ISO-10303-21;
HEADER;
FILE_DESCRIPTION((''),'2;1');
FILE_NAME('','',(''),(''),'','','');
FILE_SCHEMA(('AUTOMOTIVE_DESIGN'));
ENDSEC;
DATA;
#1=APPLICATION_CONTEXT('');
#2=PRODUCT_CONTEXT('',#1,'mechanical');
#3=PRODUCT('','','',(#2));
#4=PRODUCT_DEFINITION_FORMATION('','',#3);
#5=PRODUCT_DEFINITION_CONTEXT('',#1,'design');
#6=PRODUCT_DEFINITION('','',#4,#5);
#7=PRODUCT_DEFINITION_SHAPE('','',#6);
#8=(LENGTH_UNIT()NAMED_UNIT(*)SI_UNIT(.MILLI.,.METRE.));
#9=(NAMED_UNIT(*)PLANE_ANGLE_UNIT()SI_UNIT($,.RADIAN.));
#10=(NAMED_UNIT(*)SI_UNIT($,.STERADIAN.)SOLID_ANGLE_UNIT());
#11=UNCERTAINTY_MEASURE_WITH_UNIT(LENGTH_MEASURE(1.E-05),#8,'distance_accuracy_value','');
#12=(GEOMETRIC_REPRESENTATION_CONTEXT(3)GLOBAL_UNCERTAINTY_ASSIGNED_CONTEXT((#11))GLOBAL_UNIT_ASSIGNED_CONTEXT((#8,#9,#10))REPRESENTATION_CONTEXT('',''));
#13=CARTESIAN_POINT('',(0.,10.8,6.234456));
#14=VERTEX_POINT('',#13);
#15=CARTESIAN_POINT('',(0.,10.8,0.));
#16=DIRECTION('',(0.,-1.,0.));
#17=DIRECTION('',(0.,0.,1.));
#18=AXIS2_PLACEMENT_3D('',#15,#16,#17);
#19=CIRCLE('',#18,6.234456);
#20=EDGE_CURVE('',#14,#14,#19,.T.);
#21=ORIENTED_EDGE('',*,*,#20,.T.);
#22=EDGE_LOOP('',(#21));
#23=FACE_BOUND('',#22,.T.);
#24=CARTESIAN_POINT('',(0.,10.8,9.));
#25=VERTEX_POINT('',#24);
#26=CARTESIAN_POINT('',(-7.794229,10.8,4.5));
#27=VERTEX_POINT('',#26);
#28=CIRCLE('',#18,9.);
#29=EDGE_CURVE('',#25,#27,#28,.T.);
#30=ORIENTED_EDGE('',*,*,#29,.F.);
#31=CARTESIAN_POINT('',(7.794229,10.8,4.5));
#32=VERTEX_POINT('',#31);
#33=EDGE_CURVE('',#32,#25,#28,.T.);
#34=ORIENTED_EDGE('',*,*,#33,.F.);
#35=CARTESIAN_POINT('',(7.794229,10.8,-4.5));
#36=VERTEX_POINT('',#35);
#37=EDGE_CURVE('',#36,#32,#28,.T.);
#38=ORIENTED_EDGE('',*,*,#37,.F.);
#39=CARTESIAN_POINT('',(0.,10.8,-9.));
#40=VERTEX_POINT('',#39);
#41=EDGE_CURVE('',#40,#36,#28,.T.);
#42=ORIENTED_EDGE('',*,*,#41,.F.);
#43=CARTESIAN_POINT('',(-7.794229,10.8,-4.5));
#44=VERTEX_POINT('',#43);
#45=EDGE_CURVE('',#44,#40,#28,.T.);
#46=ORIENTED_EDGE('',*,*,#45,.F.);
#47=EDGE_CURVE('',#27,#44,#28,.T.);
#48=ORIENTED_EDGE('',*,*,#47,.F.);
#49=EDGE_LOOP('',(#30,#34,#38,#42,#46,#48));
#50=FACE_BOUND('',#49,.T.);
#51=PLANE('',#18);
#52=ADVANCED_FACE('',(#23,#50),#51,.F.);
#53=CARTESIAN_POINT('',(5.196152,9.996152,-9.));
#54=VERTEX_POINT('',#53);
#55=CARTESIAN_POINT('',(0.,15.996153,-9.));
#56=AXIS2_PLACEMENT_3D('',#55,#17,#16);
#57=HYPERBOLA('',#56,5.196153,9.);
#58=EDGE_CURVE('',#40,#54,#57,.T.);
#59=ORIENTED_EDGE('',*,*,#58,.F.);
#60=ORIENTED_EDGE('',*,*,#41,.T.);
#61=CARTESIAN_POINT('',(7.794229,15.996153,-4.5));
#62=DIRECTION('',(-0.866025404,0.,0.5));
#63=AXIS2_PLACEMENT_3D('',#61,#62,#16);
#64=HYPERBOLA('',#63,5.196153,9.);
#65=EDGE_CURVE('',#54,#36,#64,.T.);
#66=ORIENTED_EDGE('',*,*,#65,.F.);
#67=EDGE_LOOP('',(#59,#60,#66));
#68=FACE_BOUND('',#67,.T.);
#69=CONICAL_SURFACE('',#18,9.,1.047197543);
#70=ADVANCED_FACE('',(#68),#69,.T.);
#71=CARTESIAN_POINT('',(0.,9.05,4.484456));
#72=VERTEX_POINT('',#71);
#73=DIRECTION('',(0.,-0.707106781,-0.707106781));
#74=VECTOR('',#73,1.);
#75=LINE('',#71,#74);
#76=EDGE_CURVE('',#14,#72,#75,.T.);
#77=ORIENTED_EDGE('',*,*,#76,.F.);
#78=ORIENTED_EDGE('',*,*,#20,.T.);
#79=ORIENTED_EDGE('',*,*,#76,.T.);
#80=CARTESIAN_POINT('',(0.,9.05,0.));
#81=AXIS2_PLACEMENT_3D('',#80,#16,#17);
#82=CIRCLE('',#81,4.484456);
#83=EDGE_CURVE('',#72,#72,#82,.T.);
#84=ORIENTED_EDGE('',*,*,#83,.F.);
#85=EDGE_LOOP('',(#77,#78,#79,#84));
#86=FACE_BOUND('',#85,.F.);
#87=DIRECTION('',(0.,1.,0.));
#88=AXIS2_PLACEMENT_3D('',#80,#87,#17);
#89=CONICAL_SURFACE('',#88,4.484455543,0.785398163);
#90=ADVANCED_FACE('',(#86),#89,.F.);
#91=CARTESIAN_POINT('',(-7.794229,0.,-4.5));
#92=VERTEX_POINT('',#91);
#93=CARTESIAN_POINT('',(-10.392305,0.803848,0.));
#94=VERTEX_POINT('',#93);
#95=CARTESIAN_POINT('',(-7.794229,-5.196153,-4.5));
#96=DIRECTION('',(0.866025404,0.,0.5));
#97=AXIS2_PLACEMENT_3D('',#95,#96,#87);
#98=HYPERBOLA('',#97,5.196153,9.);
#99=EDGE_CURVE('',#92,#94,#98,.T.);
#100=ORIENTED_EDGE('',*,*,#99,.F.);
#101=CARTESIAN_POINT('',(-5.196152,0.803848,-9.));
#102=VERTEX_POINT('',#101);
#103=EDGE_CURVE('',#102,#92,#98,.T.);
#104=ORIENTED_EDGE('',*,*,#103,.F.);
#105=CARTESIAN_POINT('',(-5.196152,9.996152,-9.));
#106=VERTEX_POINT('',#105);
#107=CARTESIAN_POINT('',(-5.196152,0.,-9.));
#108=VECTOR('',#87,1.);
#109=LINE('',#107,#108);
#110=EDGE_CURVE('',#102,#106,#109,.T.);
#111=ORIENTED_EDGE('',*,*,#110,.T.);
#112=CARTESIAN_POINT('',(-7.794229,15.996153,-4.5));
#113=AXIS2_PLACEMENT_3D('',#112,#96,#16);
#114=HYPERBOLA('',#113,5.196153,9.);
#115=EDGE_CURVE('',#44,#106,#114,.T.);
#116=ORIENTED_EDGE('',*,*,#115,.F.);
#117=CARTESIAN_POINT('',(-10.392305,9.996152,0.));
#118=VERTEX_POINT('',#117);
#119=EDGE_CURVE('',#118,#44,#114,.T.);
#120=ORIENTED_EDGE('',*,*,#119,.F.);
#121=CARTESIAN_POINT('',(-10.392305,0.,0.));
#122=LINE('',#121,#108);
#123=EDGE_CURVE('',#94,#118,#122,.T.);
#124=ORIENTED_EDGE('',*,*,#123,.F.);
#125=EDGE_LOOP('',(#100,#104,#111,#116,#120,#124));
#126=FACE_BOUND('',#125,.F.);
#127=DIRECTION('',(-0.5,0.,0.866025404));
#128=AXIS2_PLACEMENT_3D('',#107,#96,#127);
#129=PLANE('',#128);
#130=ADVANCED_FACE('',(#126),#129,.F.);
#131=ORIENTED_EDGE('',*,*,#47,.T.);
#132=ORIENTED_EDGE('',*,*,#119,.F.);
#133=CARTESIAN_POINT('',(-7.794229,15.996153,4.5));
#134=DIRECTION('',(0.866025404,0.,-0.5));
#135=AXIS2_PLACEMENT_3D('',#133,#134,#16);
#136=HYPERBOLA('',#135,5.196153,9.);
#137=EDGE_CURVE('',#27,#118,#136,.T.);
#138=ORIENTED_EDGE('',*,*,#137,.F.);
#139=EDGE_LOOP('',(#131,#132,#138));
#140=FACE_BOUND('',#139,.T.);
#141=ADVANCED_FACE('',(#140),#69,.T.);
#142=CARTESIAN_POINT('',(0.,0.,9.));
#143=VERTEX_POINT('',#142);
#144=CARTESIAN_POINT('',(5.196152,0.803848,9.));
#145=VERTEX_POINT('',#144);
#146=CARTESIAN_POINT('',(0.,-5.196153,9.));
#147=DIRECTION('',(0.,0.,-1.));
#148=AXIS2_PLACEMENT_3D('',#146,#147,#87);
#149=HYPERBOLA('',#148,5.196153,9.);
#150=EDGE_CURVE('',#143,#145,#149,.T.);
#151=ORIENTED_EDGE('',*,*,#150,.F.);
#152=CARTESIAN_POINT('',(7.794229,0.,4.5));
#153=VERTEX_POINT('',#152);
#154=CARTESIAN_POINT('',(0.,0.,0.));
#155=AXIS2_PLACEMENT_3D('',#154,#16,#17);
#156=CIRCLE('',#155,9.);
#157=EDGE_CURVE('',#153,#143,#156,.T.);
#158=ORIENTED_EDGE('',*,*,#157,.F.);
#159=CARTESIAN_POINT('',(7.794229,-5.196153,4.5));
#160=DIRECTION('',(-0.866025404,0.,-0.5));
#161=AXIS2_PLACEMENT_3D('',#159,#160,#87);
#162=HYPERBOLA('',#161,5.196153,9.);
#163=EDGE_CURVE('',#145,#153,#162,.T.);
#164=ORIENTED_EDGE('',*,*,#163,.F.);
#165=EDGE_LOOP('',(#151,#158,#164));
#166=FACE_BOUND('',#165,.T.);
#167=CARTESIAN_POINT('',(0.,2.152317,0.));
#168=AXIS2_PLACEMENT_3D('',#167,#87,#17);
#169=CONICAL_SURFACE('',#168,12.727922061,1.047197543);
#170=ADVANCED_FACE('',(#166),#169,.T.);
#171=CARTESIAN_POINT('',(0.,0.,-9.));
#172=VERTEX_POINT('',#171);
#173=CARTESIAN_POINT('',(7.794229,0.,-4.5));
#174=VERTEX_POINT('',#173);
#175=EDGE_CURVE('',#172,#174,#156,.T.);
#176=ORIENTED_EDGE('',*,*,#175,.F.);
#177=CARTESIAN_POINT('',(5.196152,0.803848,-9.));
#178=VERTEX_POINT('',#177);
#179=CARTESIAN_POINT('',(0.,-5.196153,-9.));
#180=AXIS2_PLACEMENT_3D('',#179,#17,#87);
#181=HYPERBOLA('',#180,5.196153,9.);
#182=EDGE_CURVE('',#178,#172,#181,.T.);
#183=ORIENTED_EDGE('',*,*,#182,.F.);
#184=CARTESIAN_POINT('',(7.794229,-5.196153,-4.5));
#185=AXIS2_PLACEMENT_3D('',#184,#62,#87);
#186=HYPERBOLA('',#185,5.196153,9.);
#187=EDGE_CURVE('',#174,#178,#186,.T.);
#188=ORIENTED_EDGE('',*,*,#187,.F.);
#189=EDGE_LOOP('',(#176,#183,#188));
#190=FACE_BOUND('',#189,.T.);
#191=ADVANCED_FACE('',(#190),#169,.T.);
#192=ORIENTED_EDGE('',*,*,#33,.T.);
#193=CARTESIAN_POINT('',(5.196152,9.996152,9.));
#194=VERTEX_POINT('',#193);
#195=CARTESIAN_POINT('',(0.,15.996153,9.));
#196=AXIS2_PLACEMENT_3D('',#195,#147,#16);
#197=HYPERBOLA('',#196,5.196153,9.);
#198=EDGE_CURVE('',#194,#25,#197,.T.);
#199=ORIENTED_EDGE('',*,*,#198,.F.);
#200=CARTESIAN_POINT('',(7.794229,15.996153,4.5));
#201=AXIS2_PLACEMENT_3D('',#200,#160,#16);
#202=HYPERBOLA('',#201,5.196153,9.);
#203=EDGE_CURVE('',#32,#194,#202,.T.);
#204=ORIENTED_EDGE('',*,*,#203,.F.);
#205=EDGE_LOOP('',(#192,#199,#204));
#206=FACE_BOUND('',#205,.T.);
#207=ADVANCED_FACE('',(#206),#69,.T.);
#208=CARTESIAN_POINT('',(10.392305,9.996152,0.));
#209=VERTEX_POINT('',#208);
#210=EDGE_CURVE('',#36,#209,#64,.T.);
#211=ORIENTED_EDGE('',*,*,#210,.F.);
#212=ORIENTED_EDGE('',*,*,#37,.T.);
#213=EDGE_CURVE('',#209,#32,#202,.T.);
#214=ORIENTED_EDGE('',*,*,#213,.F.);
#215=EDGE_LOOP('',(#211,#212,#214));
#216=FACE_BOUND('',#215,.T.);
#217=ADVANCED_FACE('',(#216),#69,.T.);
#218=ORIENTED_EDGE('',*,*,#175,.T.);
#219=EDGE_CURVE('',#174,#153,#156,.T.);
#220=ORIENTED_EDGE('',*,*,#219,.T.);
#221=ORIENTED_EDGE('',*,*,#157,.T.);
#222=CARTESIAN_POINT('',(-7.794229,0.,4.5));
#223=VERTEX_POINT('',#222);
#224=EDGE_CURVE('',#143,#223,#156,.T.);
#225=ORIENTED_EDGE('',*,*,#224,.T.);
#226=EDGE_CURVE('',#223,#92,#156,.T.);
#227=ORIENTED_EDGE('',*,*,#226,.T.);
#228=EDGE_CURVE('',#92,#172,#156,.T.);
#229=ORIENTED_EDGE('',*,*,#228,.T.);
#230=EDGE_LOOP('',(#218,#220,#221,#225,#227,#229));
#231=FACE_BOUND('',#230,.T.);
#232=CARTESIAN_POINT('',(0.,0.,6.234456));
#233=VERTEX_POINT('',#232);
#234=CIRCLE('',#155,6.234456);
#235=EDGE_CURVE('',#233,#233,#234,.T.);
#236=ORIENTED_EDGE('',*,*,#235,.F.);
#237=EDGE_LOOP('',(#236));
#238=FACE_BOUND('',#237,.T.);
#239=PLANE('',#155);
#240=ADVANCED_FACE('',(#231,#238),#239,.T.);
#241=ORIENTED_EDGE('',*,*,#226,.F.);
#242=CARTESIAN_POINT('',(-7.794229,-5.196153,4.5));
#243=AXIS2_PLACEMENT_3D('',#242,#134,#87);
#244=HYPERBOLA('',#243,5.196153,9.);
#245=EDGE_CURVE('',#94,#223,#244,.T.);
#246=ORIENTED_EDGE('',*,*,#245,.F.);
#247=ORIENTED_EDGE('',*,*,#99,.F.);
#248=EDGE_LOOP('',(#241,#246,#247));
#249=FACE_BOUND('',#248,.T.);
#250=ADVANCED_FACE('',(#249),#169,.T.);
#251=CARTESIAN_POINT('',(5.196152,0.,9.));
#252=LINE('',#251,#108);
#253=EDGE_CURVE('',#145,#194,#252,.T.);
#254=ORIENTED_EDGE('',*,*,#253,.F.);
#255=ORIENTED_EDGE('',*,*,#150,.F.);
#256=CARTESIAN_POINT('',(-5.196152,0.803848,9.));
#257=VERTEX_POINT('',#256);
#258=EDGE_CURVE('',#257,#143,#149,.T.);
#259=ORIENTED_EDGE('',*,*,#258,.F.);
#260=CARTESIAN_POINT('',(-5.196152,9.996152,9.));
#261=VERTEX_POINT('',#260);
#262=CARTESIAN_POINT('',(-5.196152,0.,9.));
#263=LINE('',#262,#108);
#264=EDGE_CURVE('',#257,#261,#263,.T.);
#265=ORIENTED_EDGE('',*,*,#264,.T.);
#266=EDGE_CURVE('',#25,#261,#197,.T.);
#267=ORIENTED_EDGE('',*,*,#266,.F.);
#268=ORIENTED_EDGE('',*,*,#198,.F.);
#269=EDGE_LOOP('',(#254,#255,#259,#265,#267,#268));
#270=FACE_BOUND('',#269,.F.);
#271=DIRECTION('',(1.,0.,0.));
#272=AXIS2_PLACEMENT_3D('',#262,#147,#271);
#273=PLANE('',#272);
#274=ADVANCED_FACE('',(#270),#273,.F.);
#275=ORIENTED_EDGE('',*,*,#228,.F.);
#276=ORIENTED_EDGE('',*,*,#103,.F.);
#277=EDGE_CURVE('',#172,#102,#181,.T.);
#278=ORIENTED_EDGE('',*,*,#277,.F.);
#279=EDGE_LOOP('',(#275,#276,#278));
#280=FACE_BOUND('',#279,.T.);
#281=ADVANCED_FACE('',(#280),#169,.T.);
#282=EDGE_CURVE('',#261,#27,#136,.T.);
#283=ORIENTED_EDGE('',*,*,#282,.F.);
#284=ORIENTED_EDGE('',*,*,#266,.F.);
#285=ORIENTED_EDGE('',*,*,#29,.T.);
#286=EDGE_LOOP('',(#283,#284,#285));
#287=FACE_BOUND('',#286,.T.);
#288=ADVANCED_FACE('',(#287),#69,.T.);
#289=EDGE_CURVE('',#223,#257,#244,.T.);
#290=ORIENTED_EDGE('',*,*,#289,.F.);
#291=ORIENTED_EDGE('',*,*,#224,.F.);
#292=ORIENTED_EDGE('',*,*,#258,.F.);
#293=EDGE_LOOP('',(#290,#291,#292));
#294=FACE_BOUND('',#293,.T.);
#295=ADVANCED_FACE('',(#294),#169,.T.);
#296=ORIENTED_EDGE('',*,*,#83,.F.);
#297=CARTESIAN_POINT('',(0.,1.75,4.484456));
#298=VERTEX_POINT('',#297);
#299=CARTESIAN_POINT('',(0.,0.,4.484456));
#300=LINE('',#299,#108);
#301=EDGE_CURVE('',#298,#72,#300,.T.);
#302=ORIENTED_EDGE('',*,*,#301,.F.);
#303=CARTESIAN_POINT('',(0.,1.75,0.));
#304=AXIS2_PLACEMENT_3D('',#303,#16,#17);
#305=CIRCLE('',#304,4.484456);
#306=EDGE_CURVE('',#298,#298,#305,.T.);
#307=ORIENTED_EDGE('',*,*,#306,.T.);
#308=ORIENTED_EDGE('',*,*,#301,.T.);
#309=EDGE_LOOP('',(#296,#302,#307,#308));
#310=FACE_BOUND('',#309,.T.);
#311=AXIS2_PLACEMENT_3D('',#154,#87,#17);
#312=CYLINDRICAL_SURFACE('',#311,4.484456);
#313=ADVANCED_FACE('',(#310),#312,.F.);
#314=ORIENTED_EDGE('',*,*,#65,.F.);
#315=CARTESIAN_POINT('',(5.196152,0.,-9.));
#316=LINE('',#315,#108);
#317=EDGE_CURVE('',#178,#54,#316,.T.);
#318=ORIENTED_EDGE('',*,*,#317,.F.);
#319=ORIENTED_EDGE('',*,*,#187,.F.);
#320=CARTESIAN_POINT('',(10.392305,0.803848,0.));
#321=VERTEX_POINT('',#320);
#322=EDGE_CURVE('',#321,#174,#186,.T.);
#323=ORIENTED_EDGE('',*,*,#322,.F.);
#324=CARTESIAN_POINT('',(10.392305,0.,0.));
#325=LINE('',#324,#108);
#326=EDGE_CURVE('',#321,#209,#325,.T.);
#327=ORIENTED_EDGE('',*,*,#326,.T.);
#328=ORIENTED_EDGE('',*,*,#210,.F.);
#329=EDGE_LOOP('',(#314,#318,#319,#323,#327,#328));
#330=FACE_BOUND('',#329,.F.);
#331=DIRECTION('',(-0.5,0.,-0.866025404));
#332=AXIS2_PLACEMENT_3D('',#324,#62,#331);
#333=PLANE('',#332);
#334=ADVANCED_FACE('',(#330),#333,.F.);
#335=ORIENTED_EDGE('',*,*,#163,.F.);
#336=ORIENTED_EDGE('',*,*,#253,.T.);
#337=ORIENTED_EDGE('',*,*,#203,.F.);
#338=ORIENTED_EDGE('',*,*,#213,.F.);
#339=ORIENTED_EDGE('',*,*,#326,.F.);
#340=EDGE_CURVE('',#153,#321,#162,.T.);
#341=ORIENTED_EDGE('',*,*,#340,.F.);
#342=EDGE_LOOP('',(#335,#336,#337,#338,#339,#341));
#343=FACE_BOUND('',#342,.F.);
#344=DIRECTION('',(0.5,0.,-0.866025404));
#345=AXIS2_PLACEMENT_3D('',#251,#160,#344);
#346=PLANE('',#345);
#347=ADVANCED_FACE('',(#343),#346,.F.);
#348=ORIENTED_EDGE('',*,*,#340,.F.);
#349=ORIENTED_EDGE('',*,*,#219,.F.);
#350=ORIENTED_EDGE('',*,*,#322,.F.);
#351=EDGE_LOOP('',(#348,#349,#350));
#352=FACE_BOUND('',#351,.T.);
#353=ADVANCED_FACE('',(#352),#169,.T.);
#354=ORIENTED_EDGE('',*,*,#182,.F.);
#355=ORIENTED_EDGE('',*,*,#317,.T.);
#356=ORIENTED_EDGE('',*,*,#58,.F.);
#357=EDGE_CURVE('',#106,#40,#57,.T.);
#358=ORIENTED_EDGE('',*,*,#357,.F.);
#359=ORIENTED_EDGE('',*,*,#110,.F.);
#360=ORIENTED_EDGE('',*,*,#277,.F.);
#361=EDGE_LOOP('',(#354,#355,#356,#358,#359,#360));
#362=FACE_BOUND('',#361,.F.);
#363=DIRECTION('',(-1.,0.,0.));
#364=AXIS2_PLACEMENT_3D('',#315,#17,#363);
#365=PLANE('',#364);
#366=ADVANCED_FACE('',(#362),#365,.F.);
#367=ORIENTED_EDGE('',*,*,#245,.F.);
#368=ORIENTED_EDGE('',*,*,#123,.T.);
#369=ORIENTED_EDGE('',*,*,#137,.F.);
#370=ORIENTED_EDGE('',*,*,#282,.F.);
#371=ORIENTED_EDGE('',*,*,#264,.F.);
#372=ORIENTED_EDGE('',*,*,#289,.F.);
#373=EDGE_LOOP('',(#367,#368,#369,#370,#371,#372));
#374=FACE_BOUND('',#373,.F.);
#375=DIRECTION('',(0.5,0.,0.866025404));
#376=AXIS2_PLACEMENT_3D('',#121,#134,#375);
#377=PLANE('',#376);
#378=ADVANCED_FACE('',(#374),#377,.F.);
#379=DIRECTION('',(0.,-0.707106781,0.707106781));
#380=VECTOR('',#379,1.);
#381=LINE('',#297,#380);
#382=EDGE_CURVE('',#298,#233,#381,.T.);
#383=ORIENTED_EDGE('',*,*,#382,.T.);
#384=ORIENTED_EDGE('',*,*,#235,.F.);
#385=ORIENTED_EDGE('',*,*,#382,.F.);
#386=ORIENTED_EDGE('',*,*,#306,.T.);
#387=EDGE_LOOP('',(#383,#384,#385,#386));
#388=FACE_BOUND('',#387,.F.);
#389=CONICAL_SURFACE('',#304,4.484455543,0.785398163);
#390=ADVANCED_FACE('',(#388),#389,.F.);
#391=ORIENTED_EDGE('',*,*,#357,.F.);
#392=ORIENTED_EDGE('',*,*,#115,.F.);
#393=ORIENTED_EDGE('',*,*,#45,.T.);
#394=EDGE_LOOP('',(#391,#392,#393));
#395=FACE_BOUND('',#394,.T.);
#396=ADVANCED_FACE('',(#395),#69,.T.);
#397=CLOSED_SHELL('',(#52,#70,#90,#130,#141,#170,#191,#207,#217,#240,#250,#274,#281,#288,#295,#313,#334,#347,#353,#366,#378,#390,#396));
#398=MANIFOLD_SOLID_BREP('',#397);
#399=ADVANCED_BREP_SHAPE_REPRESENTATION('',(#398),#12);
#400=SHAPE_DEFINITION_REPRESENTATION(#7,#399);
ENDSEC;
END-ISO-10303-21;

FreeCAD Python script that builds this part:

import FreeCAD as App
import Part
import Sketcher
from FreeCAD import Vector
Q = App.Units.Quantity


def edges_at(feature, points):
    """Names of the edges that pass closest to the given points."""
    edges = feature.Shape.Edges
    near = lambda p: min(range(len(edges)), key=lambda i: edges[i].distToShape(Part.Vertex(*p))[0])
    return sorted({f"Edge{near(p) + 1}" for p in points})

doc = App.newDocument("Part")
body = doc.addObject("PartDesign::Body", "Body")

# Sketch on XY plane
sketch1 = doc.addObject("Sketcher::SketchObject", "Sketch")
body.addObject(sketch1)
sketch1.AttachmentSupport = (doc.XY_Plane, [""])
sketch1.MapMode = "FlatFace"
sketch1.addGeometry([
    Part.LineSegment(Vector(9, 10.8, 0), Vector(4.5, 10.8, 0)),  # 0
    Part.LineSegment(Vector(4.5, 10.8, 0), Vector(4.5, 0, 0)),  # 1
    Part.LineSegment(Vector(4.5, 0, 0), Vector(9, 0, 0)),  # 2
    Part.LineSegment(Vector(9, 0, 0), Vector(12.7, 2.2, 0)),  # 3
    Part.LineSegment(Vector(12.7, 2.2, 0), Vector(12.7, 8.6, 0)),  # 4
    Part.LineSegment(Vector(12.7, 8.6, 0), Vector(9, 10.8, 0)),  # 5
], False)
sketch1.addConstraint([
    Sketcher.Constraint("Coincident", 0, 2, 1, 1),
    Sketcher.Constraint("Coincident", 1, 2, 2, 1),
    Sketcher.Constraint("Coincident", 2, 2, 3, 1),
    Sketcher.Constraint("Coincident", 3, 2, 4, 1),
    Sketcher.Constraint("Coincident", 4, 2, 5, 1),
    Sketcher.Constraint("Coincident", 5, 2, 0, 1),
    Sketcher.Constraint("Horizontal", 0),
    Sketcher.Constraint("Vertical", 1),
    Sketcher.Constraint("Horizontal", 2),
    Sketcher.Constraint("Vertical", 4),
    Sketcher.Constraint("PointOnObject", 1, 2, -1),
    Sketcher.Constraint("Vertical", 2, 2, 5, 2),
    Sketcher.Constraint("Equal", 3, 5),
    Sketcher.Constraint("Angle", 3, Q("30 deg")),
    Sketcher.Constraint("DistanceY", 1, 2, 1, 1, Q("10.8 mm")),
    Sketcher.Constraint("DistanceX", -1, 1, 2, 2, Q("9 mm")),
    Sketcher.Constraint("DistanceX", 0, 2, 0, 1, Q("4.515544 mm")),
    Sketcher.Constraint("DistanceY", 4, 1, 4, 2, Q("6.495366 mm")),
])
revolution = doc.addObject("PartDesign::Revolution", "Revolution")
body.addObject(revolution)
revolution.Profile = sketch1
revolution.ReferenceAxis = (sketch1, ["V_Axis"])
revolution.Angle = 360

# Sketch on XZ plane
sketch2 = doc.addObject("Sketcher::SketchObject", "Sketch001")
body.addObject(sketch2)
sketch2.AttachmentSupport = (doc.XZ_Plane, [""])
sketch2.MapMode = "FlatFace"
sketch2.addGeometry([
    Part.LineSegment(Vector(-17, -17, 0), Vector(-17, 17, 0)),  # 0
    Part.LineSegment(Vector(-17, 17, 0), Vector(17, 17, 0)),  # 1
    Part.LineSegment(Vector(17, 17, 0), Vector(17, -17, 0)),  # 2
    Part.LineSegment(Vector(17, -17, 0), Vector(-17, -17, 0)),  # 3
    Part.LineSegment(Vector(5, 9, 0), Vector(-5, 9, 0)),  # 4
    Part.LineSegment(Vector(-5, 9, 0), Vector(-10, 0, 0)),  # 5
    Part.LineSegment(Vector(-10, 0, 0), Vector(-5, -9, 0)),  # 6
    Part.LineSegment(Vector(-5, -9, 0), Vector(5, -9, 0)),  # 7
    Part.LineSegment(Vector(5, -9, 0), Vector(10, 0, 0)),  # 8
    Part.LineSegment(Vector(10, 0, 0), Vector(5, 9, 0)),  # 9
], False)
sketch2.addConstraint([
    Sketcher.Constraint("Coincident", 0, 2, 1, 1),
    Sketcher.Constraint("Coincident", 1, 2, 2, 1),
    Sketcher.Constraint("Coincident", 2, 2, 3, 1),
    Sketcher.Constraint("Coincident", 3, 2, 0, 1),
    Sketcher.Constraint("Coincident", 4, 2, 5, 1),
    Sketcher.Constraint("Coincident", 5, 2, 6, 1),
    Sketcher.Constraint("Coincident", 6, 2, 7, 1),
    Sketcher.Constraint("Coincident", 7, 2, 8, 1),
    Sketcher.Constraint("Coincident", 8, 2, 9, 1),
    Sketcher.Constraint("Coincident", 9, 2, 4, 1),
    Sketcher.Constraint("Vertical", 0),
    Sketcher.Constraint("Horizontal", 1),
    Sketcher.Constraint("Vertical", 2),
    Sketcher.Constraint("Horizontal", 3),
    Sketcher.Constraint("Horizontal", 4),
    Sketcher.Constraint("Horizontal", 7),
    Sketcher.Constraint("Symmetric", 0, 2, 2, 2, -1, 1),
    Sketcher.Constraint("Symmetric", 4, 2, 7, 2, -1, 1),
    Sketcher.Constraint("Symmetric", 5, 2, 8, 2, -1, 1),
    Sketcher.Constraint("PointOnObject", 5, 2, -1),
    Sketcher.Constraint("Parallel", 6, 9),
    Sketcher.Constraint("Vertical", 4, 2, 6, 2),
    Sketcher.Constraint("Equal", 3, 0),
    Sketcher.Constraint("Angle", 5, Q("-120 deg")),
    Sketcher.Constraint("DistanceY", -1, 1, 4, 2, Q("9 mm")),
    Sketcher.Constraint("DistanceX", 1, 1, 1, 2, Q("34.974 mm")),
    Sketcher.Constraint("DistanceX", 4, 2, 4, 1, Q("10.392305 mm")),
])
pocket1 = doc.addObject("PartDesign::Pocket", "Pocket")
body.addObject(pocket1)
pocket1.Profile = sketch2
pocket1.Length = 10.8
doc.recompute()

chamfer = doc.addObject("PartDesign::Chamfer", "Chamfer")
body.addObject(chamfer)
chamfer.Base = (pocket1, edges_at(pocket1, [(0, 10.8, -4.484), (0, 0, -4.484)]))
chamfer.Size = 1.75

doc.recompute()
